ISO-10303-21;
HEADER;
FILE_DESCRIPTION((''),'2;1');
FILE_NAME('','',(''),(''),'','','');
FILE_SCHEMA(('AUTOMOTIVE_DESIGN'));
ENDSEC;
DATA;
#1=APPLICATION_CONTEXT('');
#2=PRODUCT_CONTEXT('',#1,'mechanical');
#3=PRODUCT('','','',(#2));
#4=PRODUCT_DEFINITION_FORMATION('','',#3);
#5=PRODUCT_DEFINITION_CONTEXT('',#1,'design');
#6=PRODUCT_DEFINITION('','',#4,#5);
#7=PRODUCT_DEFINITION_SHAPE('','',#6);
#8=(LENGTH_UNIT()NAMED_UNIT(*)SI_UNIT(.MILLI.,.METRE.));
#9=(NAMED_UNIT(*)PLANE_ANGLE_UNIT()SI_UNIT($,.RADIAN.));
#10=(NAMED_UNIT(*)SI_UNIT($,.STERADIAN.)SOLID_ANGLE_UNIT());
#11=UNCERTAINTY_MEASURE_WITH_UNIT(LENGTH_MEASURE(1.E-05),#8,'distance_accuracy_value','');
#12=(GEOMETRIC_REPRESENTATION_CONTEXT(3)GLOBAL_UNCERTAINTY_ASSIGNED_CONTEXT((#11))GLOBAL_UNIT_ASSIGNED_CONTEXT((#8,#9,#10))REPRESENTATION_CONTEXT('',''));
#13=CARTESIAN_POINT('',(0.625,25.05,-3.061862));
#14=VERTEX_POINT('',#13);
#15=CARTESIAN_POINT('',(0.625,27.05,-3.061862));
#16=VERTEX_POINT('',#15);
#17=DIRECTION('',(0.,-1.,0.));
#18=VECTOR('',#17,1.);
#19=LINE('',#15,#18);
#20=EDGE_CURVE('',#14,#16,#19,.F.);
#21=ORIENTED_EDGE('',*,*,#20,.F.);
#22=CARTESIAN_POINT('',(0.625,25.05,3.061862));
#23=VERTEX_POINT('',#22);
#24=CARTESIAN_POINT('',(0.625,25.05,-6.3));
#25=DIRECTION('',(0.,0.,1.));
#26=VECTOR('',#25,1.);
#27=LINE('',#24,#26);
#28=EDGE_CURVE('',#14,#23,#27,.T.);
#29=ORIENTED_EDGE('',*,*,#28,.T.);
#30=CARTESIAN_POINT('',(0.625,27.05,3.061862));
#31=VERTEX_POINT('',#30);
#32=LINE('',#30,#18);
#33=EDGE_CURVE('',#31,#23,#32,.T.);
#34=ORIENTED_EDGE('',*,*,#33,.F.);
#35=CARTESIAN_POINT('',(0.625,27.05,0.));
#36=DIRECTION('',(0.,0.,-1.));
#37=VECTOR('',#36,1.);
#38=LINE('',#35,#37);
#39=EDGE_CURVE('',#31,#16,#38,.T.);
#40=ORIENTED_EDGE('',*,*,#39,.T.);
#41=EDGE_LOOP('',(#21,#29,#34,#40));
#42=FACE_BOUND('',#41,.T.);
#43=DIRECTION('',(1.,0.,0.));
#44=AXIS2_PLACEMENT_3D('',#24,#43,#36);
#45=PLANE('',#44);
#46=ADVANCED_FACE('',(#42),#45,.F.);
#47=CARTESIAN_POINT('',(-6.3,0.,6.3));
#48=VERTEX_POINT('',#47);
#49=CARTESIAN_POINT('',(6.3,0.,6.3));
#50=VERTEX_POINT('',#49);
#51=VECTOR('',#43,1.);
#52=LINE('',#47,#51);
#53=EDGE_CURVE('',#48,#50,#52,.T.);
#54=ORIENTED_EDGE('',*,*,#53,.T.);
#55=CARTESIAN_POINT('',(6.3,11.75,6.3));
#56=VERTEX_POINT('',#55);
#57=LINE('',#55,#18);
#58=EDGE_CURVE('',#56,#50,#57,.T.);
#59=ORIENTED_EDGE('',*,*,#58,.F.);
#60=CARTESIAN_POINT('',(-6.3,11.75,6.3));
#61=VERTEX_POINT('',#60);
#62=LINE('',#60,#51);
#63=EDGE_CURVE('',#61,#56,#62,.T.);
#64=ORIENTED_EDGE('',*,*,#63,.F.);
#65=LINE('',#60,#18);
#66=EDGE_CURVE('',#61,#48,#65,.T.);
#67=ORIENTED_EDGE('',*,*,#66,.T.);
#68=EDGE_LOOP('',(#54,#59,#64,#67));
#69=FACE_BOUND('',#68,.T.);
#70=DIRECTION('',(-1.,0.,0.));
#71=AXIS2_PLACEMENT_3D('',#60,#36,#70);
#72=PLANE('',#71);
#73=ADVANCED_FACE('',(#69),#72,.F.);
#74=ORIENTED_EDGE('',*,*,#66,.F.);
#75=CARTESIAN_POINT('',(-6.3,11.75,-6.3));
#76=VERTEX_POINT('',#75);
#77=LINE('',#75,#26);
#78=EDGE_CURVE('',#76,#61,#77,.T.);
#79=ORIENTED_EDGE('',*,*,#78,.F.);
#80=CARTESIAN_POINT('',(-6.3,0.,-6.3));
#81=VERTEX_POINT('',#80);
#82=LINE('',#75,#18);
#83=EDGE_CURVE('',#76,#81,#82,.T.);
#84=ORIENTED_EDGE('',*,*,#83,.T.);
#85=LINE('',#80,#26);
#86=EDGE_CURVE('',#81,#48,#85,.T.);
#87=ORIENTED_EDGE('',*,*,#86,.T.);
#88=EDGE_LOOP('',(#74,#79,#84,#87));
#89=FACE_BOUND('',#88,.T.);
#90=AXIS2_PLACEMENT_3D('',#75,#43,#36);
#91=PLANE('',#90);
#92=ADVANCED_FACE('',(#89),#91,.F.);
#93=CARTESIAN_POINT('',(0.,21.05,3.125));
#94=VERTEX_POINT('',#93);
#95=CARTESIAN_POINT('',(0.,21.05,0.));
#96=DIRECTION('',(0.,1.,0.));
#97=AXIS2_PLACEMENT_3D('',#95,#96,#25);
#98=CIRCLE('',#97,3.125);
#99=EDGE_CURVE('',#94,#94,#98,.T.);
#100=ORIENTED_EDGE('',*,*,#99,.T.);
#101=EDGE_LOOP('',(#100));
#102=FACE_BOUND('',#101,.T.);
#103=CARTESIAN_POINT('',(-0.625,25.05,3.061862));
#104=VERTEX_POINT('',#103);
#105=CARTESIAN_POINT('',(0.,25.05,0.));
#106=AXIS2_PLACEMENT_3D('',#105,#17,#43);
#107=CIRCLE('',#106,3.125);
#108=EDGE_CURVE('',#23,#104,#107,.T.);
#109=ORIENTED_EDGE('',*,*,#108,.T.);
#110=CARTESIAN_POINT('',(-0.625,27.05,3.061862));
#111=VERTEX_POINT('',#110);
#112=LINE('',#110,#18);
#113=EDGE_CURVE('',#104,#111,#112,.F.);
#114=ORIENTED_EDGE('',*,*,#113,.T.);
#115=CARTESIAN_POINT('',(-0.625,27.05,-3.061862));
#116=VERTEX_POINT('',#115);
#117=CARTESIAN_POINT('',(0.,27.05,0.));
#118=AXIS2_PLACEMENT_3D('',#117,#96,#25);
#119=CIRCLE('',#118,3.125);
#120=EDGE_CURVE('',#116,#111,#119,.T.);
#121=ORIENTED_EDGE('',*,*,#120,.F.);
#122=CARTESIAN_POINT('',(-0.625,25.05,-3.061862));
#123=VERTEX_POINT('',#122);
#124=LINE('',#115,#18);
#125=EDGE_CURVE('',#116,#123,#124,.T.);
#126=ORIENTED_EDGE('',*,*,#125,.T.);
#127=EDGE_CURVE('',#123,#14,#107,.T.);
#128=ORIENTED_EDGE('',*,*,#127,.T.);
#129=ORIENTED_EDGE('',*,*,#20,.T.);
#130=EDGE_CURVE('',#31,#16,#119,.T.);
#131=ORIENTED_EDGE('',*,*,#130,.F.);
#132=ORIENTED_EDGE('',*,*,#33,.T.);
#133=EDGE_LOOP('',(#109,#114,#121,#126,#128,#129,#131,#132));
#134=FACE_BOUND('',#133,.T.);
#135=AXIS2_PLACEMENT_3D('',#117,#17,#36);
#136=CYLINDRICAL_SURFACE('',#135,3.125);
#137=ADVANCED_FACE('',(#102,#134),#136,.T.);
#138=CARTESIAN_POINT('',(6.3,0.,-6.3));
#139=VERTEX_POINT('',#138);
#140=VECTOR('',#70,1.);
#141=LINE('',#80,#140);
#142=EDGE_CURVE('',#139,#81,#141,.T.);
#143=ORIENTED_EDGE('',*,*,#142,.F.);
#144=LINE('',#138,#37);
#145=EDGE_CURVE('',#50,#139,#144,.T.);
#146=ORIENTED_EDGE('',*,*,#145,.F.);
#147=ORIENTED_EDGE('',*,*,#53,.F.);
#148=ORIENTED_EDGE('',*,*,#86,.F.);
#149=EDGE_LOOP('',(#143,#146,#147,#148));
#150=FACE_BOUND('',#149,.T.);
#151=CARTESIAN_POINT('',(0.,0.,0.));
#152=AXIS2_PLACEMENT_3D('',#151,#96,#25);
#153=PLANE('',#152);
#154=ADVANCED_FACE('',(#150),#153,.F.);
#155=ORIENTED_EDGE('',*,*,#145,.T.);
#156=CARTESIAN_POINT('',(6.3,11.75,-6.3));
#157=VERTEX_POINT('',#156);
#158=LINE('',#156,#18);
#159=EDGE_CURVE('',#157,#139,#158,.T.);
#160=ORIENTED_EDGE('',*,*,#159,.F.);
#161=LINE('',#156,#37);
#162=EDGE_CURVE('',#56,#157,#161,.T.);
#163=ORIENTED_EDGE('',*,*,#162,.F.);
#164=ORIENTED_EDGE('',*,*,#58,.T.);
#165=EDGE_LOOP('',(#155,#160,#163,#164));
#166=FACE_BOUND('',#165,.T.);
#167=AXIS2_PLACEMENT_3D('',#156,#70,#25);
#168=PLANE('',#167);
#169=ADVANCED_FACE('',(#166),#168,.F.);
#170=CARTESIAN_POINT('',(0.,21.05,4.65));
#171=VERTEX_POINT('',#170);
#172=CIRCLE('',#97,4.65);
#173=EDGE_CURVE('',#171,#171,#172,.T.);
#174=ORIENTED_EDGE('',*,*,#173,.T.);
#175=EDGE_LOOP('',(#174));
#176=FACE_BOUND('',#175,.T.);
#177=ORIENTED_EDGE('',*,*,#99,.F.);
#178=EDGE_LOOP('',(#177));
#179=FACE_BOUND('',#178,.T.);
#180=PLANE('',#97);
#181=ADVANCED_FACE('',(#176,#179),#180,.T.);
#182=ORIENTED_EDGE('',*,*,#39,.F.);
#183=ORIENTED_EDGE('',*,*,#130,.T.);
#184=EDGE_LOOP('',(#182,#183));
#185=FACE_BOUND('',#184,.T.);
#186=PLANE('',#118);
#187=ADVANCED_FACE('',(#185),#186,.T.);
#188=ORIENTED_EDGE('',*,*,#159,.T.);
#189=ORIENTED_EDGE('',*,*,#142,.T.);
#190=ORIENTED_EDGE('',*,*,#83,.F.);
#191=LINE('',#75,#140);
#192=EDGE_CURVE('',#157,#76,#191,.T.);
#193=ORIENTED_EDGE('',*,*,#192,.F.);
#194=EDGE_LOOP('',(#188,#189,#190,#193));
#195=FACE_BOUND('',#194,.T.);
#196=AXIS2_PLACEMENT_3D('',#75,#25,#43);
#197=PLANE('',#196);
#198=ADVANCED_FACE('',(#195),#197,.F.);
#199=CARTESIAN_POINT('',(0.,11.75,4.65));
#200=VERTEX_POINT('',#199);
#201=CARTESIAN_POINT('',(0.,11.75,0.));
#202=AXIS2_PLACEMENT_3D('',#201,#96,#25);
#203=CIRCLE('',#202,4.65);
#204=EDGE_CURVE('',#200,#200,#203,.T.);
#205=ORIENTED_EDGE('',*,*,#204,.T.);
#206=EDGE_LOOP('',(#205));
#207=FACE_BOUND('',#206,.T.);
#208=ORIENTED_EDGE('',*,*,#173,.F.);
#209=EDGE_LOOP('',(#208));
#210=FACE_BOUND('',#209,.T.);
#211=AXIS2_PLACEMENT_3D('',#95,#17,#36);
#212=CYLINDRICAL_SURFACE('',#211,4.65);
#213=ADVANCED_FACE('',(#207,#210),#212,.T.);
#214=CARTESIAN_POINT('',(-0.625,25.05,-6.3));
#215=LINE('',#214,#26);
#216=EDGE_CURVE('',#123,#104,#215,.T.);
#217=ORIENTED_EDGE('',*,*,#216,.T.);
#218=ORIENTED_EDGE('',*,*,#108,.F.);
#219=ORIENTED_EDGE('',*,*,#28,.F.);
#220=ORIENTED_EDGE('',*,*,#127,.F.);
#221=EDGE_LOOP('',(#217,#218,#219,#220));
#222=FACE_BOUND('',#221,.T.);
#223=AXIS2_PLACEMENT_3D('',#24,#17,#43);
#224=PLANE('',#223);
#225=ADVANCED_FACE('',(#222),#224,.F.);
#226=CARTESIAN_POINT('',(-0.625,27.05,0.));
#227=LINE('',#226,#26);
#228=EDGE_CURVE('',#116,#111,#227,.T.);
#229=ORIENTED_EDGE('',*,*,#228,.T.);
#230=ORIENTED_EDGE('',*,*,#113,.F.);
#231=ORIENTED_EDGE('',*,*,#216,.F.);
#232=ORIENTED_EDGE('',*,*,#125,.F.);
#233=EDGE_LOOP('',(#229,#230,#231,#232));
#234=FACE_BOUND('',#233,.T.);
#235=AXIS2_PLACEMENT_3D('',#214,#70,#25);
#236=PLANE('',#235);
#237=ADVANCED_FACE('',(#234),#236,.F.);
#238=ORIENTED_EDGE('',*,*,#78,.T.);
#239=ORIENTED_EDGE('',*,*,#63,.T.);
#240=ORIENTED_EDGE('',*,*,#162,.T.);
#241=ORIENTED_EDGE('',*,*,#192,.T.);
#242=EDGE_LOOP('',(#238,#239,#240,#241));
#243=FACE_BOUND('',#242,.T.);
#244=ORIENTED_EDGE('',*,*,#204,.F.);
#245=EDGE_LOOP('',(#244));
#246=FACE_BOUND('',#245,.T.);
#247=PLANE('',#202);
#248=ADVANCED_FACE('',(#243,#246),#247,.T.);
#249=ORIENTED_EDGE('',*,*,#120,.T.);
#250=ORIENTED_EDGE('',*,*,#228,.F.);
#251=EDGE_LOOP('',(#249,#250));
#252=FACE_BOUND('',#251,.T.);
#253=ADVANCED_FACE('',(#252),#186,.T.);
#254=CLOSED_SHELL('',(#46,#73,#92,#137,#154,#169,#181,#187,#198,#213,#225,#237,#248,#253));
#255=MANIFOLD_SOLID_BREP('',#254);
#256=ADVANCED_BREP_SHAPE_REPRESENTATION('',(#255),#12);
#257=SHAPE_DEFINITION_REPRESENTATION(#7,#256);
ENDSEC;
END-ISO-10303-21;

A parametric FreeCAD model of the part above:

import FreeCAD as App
import Part
import Sketcher

V = App.Vector
Q = App.Units.Quantity

doc = App.newDocument("Part")
body = doc.addObject("PartDesign::Body", "Body")

# Sketch on XZ plane
sketch1 = doc.addObject("Sketcher::SketchObject", "Sketch")
body.addObject(sketch1)
sketch1.AttachmentSupport = (doc.XZ_Plane, [""])
sketch1.MapMode = "FlatFace"
sketch1.addGeometry(Part.LineSegment(V(-6, -6, 0), V(-6, 6, 0)), False)
sketch1.addGeometry(Part.LineSegment(V(-6, 6, 0), V(6, 6, 0)), False)
sketch1.addGeometry(Part.LineSegment(V(6, 6, 0), V(6, -6, 0)), False)
sketch1.addGeometry(Part.LineSegment(V(6, -6, 0), V(-6, -6, 0)), False)
sketch1.addConstraint(Sketcher.Constraint("Coincident", 0, 2, 1, 1))
sketch1.addConstraint(Sketcher.Constraint("Coincident", 1, 2, 2, 1))
sketch1.addConstraint(Sketcher.Constraint("Coincident", 2, 2, 3, 1))
sketch1.addConstraint(Sketcher.Constraint("Coincident", 3, 2, 0, 1))
sketch1.addConstraint(Sketcher.Constraint("Vertical", 0))
sketch1.addConstraint(Sketcher.Constraint("Horizontal", 1))
sketch1.addConstraint(Sketcher.Constraint("Vertical", 2))
sketch1.addConstraint(Sketcher.Constraint("Horizontal", 3))
sketch1.addConstraint(Sketcher.Constraint("Symmetric", 0, 2, 2, 2, -1, 1))
sketch1.addConstraint(Sketcher.Constraint("Equal", 3, 0))
sketch1.addConstraint(Sketcher.Constraint("DistanceX", 1, 1, 1, 2, Q("12.6 mm")))
pad1 = doc.addObject("PartDesign::Pad", "Pad")
body.addObject(pad1)
pad1.Profile = sketch1
pad1.Length = 11.75
pad1.Reversed = True

# Sketch on XZ plane
sketch2 = doc.addObject("Sketcher::SketchObject", "Sketch001")
body.addObject(sketch2)
sketch2.AttachmentSupport = (doc.XZ_Plane, [""])
sketch2.MapMode = "FlatFace"
sketch2.AttachmentOffset = App.Placement(V(0, 0, -11.75), App.Rotation())
sketch2.addGeometry(Part.Circle(V(0, 0, 0), V(0, 0, 1), 4.7), False)
sketch2.addConstraint(Sketcher.Constraint("Coincident", 0, 3, -1, 1))
sketch2.addConstraint(Sketcher.Constraint("Diameter", 0, Q("9.3 mm")))
pad2 = doc.addObject("PartDesign::Pad", "Pad001")
body.addObject(pad2)
pad2.Profile = sketch2
pad2.Length = 9.3
pad2.Reversed = True

# Sketch on XZ plane
sketch3 = doc.addObject("Sketcher::SketchObject", "Sketch002")
body.addObject(sketch3)
sketch3.AttachmentSupport = (doc.XZ_Plane, [""])
sketch3.MapMode = "FlatFace"
sketch3.AttachmentOffset = App.Placement(V(0, 0, -21.05), App.Rotation())
sketch3.addGeometry(Part.Circle(V(0, 0, 0), V(0, 0, 1), 3.1), False)
sketch3.addConstraint(Sketcher.Constraint("Coincident", 0, 3, -1, 1))
sketch3.addConstraint(Sketcher.Constraint("Diameter", 0, Q("6.25 mm")))
pad3 = doc.addObject("PartDesign::Pad", "Pad002")
body.addObject(pad3)
pad3.Profile = sketch3
pad3.Length = 6
pad3.Reversed = True

# Sketch on XY plane
sketch4 = doc.addObject("Sketcher::SketchObject", "Sketch003")
body.addObject(sketch4)
sketch4.AttachmentSupport = (doc.XY_Plane, [""])
sketch4.MapMode = "FlatFace"
sketch4.addGeometry(Part.LineSegment(V(-0.6, 27.1, 0), V(-0.6, 25.1, 0)), False)
sketch4.addGeometry(Part.LineSegment(V(-0.6, 25.1, 0), V(0.6, 25.1, 0)), False)
sketch4.addGeometry(Part.LineSegment(V(0.6, 25.1, 0), V(0.6, 27.1, 0)), False)
sketch4.addGeometry(Part.LineSegment(V(0.6, 27.1, 0), V(-0.6, 27.1, 0)), False)
sketch4.addConstraint(Sketcher.Constraint("Coincident", 0, 2, 1, 1))
sketch4.addConstraint(Sketcher.Constraint("Coincident", 1, 2, 2, 1))
sketch4.addConstraint(Sketcher.Constraint("Coincident", 2, 2, 3, 1))
sketch4.addConstraint(Sketcher.Constraint("Coincident", 3, 2, 0, 1))
sketch4.addConstraint(Sketcher.Constraint("Vertical", 0))
sketch4.addConstraint(Sketcher.Constraint("Horizontal", 1))
sketch4.addConstraint(Sketcher.Constraint("Vertical", 2))
sketch4.addConstraint(Sketcher.Constraint("Horizontal", 3))
sketch4.addConstraint(Sketcher.Constraint("DistanceY", 0, 2, 0, 1, Q("2 mm")))
sketch4.addConstraint(Sketcher.Constraint("DistanceX", 1, 1, 1, 2, Q("1.25 mm")))
sketch4.addConstraint(Sketcher.Constraint("DistanceY", -1, 1, 0, 2, Q("25.05 mm")))
sketch4.addConstraint(Sketcher.Constraint("DistanceX", 0, 2, -1, 1, Q("0.625 mm")))
pocket1 = doc.addObject("PartDesign::Pocket", "Pocket")
body.addObject(pocket1)
pocket1.Profile = sketch4
pocket1.Type = "ThroughAll"
pocket1.Midplane = True

doc.recompute()
